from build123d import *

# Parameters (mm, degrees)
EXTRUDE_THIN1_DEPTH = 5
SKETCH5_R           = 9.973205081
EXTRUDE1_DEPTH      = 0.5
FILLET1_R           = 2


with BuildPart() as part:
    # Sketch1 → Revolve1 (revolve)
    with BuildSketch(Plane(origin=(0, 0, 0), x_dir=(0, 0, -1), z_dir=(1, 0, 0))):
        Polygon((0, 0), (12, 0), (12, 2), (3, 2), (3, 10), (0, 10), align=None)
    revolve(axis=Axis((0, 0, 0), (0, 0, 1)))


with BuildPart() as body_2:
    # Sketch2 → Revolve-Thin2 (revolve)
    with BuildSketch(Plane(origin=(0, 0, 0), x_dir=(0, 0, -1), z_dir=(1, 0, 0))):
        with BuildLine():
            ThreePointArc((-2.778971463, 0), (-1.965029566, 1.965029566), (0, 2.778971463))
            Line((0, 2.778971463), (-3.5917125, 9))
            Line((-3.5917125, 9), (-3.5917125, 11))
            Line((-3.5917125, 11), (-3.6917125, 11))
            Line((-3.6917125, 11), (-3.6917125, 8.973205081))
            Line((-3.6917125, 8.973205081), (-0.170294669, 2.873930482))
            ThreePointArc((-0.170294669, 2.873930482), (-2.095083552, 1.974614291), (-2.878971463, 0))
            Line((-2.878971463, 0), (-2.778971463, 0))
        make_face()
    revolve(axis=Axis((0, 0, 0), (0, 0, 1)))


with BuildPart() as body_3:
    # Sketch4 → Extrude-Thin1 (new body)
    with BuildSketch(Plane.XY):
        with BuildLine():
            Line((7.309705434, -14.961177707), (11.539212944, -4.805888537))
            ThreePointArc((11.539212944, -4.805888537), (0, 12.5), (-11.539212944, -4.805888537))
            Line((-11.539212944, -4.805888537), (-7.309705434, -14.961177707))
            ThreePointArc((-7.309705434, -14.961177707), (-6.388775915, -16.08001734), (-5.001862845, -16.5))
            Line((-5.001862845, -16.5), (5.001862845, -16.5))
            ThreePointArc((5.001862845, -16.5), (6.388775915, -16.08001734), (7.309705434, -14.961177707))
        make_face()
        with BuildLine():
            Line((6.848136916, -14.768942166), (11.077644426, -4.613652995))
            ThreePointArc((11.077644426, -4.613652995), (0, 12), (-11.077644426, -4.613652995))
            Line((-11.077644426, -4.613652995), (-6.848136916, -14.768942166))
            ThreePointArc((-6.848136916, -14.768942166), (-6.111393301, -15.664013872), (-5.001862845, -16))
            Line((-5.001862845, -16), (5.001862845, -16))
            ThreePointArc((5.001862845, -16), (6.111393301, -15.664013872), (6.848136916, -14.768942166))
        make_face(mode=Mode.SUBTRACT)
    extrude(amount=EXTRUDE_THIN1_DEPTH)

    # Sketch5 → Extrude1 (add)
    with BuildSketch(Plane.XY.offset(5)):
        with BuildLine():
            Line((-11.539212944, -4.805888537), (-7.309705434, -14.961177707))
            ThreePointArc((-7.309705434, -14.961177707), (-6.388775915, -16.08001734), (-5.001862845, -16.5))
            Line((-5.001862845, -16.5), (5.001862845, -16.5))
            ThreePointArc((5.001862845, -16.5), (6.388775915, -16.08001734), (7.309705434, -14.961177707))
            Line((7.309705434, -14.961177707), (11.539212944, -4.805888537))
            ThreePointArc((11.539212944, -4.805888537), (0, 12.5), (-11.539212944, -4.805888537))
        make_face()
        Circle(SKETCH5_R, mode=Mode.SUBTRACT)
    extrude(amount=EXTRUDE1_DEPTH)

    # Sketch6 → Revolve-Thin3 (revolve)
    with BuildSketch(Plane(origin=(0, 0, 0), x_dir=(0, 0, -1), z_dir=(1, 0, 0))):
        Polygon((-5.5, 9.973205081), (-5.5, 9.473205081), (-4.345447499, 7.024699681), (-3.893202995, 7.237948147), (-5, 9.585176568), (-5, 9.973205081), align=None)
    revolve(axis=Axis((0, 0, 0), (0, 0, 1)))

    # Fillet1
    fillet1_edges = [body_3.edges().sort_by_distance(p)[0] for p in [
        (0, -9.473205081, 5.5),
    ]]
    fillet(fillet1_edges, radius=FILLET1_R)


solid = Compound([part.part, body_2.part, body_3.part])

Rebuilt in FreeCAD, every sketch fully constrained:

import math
import FreeCAD as App
import Part
import Sketcher
from FreeCAD import Vector
Q = App.Units.Quantity


def edges_at(feature, points):
    """Names of the edges that pass closest to the given points."""
    edges = feature.Shape.Edges
    near = lambda p: min(range(len(edges)), key=lambda i: edges[i].distToShape(Part.Vertex(*p))[0])
    return sorted({f"Edge{near(p) + 1}" for p in points})

doc = App.newDocument("Part")
body = doc.addObject("PartDesign::Body", "Body")

sketch1 = body.newObject("Sketcher::SketchObject", "Sketch")
sketch1.AttachmentSupport = (doc.getObject("YZ_Plane"), [""])
sketch1.MapMode = "FlatFace"
sketch1.addGeometry(Part.LineSegment(Vector(0, 0, 0), Vector(0, -12, 0)), False)
sketch1.addGeometry(Part.LineSegment(Vector(0, -12, 0), Vector(2, -12, 0)), False)
sketch1.addGeometry(Part.LineSegment(Vector(2, -12, 0), Vector(2, -3, 0)), False)
sketch1.addGeometry(Part.LineSegment(Vector(2, -3, 0), Vector(10, -3, 0)), False)
sketch1.addGeometry(Part.LineSegment(Vector(10, -3, 0), Vector(10, 0, 0)), False)
sketch1.addGeometry(Part.LineSegment(Vector(10, 0, 0), Vector(0, 0, 0)), False)
sketch1.addConstraint(Sketcher.Constraint("Coincident", 0, 2, 1, 1))
sketch1.addConstraint(Sketcher.Constraint("Coincident", 1, 2, 2, 1))
sketch1.addConstraint(Sketcher.Constraint("Coincident", 2, 2, 3, 1))
sketch1.addConstraint(Sketcher.Constraint("Coincident", 3, 2, 4, 1))
sketch1.addConstraint(Sketcher.Constraint("Coincident", 4, 2, 5, 1))
sketch1.addConstraint(Sketcher.Constraint("Coincident", 5, 2, 0, 1))
sketch1.addConstraint(Sketcher.Constraint("Vertical", 0))
sketch1.addConstraint(Sketcher.Constraint("Horizontal", 1))
sketch1.addConstraint(Sketcher.Constraint("Vertical", 2))
sketch1.addConstraint(Sketcher.Constraint("Horizontal", 3))
sketch1.addConstraint(Sketcher.Constraint("Vertical", 4))
sketch1.addConstraint(Sketcher.Constraint("Horizontal", 5))
sketch1.addConstraint(Sketcher.Constraint("Coincident", 5, 2, -1, 1))
sketch1.addConstraint(Sketcher.Constraint("DistanceX", 1, 1, 1, 2, 2.0))
sketch1.addConstraint(Sketcher.Constraint("DistanceX", 3, 1, 3, 2, 8.0))
sketch1.addConstraint(Sketcher.Constraint("DistanceY", 0, 2, 0, 1, 12.0))
sketch1.addConstraint(Sketcher.Constraint("DistanceY", 2, 1, 2, 2, 9.0))
revolution = body.newObject("PartDesign::Revolution", "Revolution")
revolution.Profile = sketch1
revolution.ReferenceAxis = (sketch1, ["V_Axis"])
revolution.Angle = 360
body2 = doc.addObject("PartDesign::Body", "Body001")

sketch2 = body2.newObject("Sketcher::SketchObject", "Sketch001")
sketch2.AttachmentSupport = (doc.getObject("YZ_Plane001"), [""])
sketch2.MapMode = "FlatFace"
sketch2.addGeometry(Part.ArcOfCircle(Part.Circle(Vector(0, 0, 0), Vector(0, 0, 1), 2.78), math.radians(0), math.radians(90)), False)
sketch2.addGeometry(Part.LineSegment(Vector(2.78, 0, 0), Vector(9, 3.59, 0)), False)
sketch2.addGeometry(Part.LineSegment(Vector(9, 3.59, 0), Vector(11, 3.59, 0)), False)
sketch2.addGeometry(Part.LineSegment(Vector(11, 3.59, 0), Vector(11, 3.69, 0)), False)
sketch2.addGeometry(Part.LineSegment(Vector(11, 3.69, 0), Vector(8.97, 3.69, 0)), False)
sketch2.addGeometry(Part.LineSegment(Vector(8.97, 3.69, 0), Vector(2.87, 0.17, 0)), False)
sketch2.addGeometry(Part.ArcOfCircle(Part.Circle(Vector(0, 0, 0), Vector(0, 0, 1), 2.88), math.radians(3), math.radians(90)), False)
sketch2.addGeometry(Part.LineSegment(Vector(0, 2.88, 0), Vector(0, 2.78, 0)), False)
sketch2.addConstraint(Sketcher.Constraint("Coincident", 0, 1, 1, 1))
sketch2.addConstraint(Sketcher.Constraint("Coincident", 1, 2, 2, 1))
sketch2.addConstraint(Sketcher.Constraint("Coincident", 2, 2, 3, 1))
sketch2.addConstraint(Sketcher.Constraint("Coincident", 3, 2, 4, 1))
sketch2.addConstraint(Sketcher.Constraint("Coincident", 4, 2, 5, 1))
sketch2.addConstraint(Sketcher.Constraint("Coincident", 5, 2, 6, 1))
sketch2.addConstraint(Sketcher.Constraint("Coincident", 6, 2, 7, 1))
sketch2.addConstraint(Sketcher.Constraint("Coincident", 7, 2, 0, 2))
sketch2.addConstraint(Sketcher.Constraint("Horizontal", 2))
sketch2.addConstraint(Sketcher.Constraint("Vertical", 3))
sketch2.addConstraint(Sketcher.Constraint("Horizontal", 4))
sketch2.addConstraint(Sketcher.Constraint("Vertical", 7))
sketch2.addConstraint(Sketcher.Constraint("Coincident", 0, 3, -1, 1))
sketch2.addConstraint(Sketcher.Constraint("Coincident", 6, 3, -1, 1))
sketch2.addConstraint(Sketcher.Constraint("PointOnObject", 0, 1, -1))
sketch2.addConstraint(Sketcher.Constraint("PointOnObject", 6, 2, -2))
sketch2.addConstraint(Sketcher.Constraint("Parallel", 1, 5))
sketch2.addConstraint(Sketcher.Constraint("Equal", 3, 7))
sketch2.addConstraint(Sketcher.Constraint("DistanceX", 2, 1, 2, 2, 2.0))
sketch2.addConstraint(Sketcher.Constraint("Angle", 1, Q("30 deg")))
sketch2.addConstraint(Sketcher.Constraint("DistanceY", 3, 1, 3, 2, 0.1))
sketch2.addConstraint(Sketcher.Constraint("DistanceX", -1, 1, 1, 2, 9.0))
sketch2.addConstraint(Sketcher.Constraint("Radius", 0, 2.778971))
sketch2.addConstraint(Sketcher.Constraint("DistanceX", 4, 2, 4, 1, 2.026795))
revolution2 = body2.newObject("PartDesign::Revolution", "Revolution001")
revolution2.Profile = sketch2
revolution2.ReferenceAxis = (sketch2, ["V_Axis"])
revolution2.Angle = 360
body3 = doc.addObject("PartDesign::Body", "Body002")

sketch3 = body3.newObject("Sketcher::SketchObject", "Sketch002")
sketch3.AttachmentSupport = (doc.getObject("XY_Plane002"), [""])
sketch3.MapMode = "FlatFace"
sketch3.addGeometry(Part.LineSegment(Vector(7.3, -15, 0), Vector(11.5, -4.8, 0)), False)
sketch3.addGeometry(Part.ArcOfCircle(Part.Circle(Vector(0, 0, 0), Vector(0, 0, 1), 12.5), math.radians(-23), math.radians(203)), False)
sketch3.addGeometry(Part.LineSegment(Vector(-11.5, -4.8, 0), Vector(-7.3, -15, 0)), False)
sketch3.addGeometry(Part.ArcOfCircle(Part.Circle(Vector(-5, -14, 0), Vector(0, 0, 1), 2.5), math.radians(-157), math.radians(-90)), False)
sketch3.addGeometry(Part.LineSegment(Vector(-5, -16.5, 0), Vector(5, -16.5, 0)), False)
sketch3.addGeometry(Part.ArcOfCircle(Part.Circle(Vector(5, -14, 0), Vector(0, 0, 1), 2.5), math.radians(-90), math.radians(-23)), False)
sketch3.addGeometry(Part.LineSegment(Vector(11.1, -4.6, 0), Vector(6.8, -14.8, 0)), False)
sketch3.addGeometry(Part.ArcOfCircle(Part.Circle(Vector(5, -14, 0), Vector(0, 0, 1), 2), math.radians(-90), math.radians(-23)), False)
sketch3.addGeometry(Part.LineSegment(Vector(5, -16, 0), Vector(-5, -16, 0)), False)
sketch3.addGeometry(Part.ArcOfCircle(Part.Circle(Vector(-5, -14, 0), Vector(0, 0, 1), 2), math.radians(-157), math.radians(-90)), False)
sketch3.addGeometry(Part.LineSegment(Vector(-6.8, -14.8, 0), Vector(-11.1, -4.6, 0)), False)
sketch3.addGeometry(Part.ArcOfCircle(Part.Circle(Vector(0, 0, 0), Vector(0, 0, 1), 12), math.radians(-23), math.radians(203)), False)
sketch3.addConstraint(Sketcher.Constraint("Tangent", 0, 2, 1, 1))
sketch3.addConstraint(Sketcher.Constraint("Tangent", 1, 2, 2, 1))
sketch3.addConstraint(Sketcher.Constraint("Tangent", 2, 2, 3, 1))
sketch3.addConstraint(Sketcher.Constraint("Tangent", 3, 2, 4, 1))
sketch3.addConstraint(Sketcher.Constraint("Tangent", 4, 2, 5, 1))
sketch3.addConstraint(Sketcher.Constraint("Tangent", 5, 2, 0, 1))
sketch3.addConstraint(Sketcher.Constraint("Tangent", 6, 2, 7, 2))
sketch3.addConstraint(Sketcher.Constraint("Tangent", 7, 1, 8, 1))
sketch3.addConstraint(Sketcher.Constraint("Tangent", 8, 2, 9, 2))
sketch3.addConstraint(Sketcher.Constraint("Tangent", 9, 1, 10, 1))
sketch3.addConstraint(Sketcher.Constraint("Tangent", 10, 2, 11, 2))
sketch3.addConstraint(Sketcher.Constraint("Tangent", 11, 1, 6, 1))
sketch3.addConstraint(Sketcher.Constraint("Horizontal", 4))
sketch3.addConstraint(Sketcher.Constraint("Horizontal", 8))
sketch3.addConstraint(Sketcher.Constraint("Coincident", 1, 3, -1, 1))
sketch3.addConstraint(Sketcher.Constraint("Coincident", 11, 3, -1, 1))
sketch3.addConstraint(Sketcher.Constraint("Coincident", 7, 3, 5, 3))
sketch3.addConstraint(Sketcher.Constraint("Coincident", 9, 3, 3, 3))
sketch3.addConstraint(Sketcher.Constraint("Equal", 3, 5))
sketch3.addConstraint(Sketcher.Constraint("Parallel", 0, 6))
sketch3.addConstraint(Sketcher.Constraint("Horizontal", 0, 2, 1, 2))
sketch3.addConstraint(Sketcher.Constraint("Radius", 7, 2.0))
sketch3.addConstraint(Sketcher.Constraint("Radius", 11, 12.0))
sketch3.addConstraint(Sketcher.Constraint("Radius", 1, 12.5))
sketch3.addConstraint(Sketcher.Constraint("DistanceY", 3, 3, -1, 1, 14.0))
sketch3.addConstraint(Sketcher.Constraint("DistanceX", 4, 1, 4, 2, 10.003726))
pad1 = body3.newObject("PartDesign::Pad", "Pad")
pad1.Profile = sketch3
pad1.Length = 5

sketch4 = body3.newObject("Sketcher::SketchObject", "Sketch003")
sketch4.AttachmentSupport = (doc.getObject("XY_Plane002"), [""])
sketch4.MapMode = "FlatFace"
sketch4.AttachmentOffset = App.Placement(Vector(0, 0, 5), App.Rotation())
sketch4.addGeometry(Part.LineSegment(Vector(-11.5, -4.8, 0), Vector(-7.3, -15, 0)), False)
sketch4.addGeometry(Part.ArcOfCircle(Part.Circle(Vector(-5, -14, 0), Vector(0, 0, 1), 2.5), math.radians(-157), math.radians(-90)), False)
sketch4.addGeometry(Part.LineSegment(Vector(-5, -16.5, 0), Vector(5, -16.5, 0)), False)
sketch4.addGeometry(Part.ArcOfCircle(Part.Circle(Vector(5, -14, 0), Vector(0, 0, 1), 2.5), math.radians(-90), math.radians(-23)), False)
sketch4.addGeometry(Part.LineSegment(Vector(7.3, -15, 0), Vector(11.5, -4.8, 0)), False)
sketch4.addGeometry(Part.ArcOfCircle(Part.Circle(Vector(0, 0, 0), Vector(0, 0, 1), 12.5), math.radians(-23), math.radians(203)), False)
sketch4.addGeometry(Part.Circle(Vector(0, 0, 0), Vector(0, 0, 1), 10), False)
sketch4.addConstraint(Sketcher.Constraint("Tangent", 0, 2, 1, 1))
sketch4.addConstraint(Sketcher.Constraint("Tangent", 1, 2, 2, 1))
sketch4.addConstraint(Sketcher.Constraint("Tangent", 2, 2, 3, 1))
sketch4.addConstraint(Sketcher.Constraint("Tangent", 3, 2, 4, 1))
sketch4.addConstraint(Sketcher.Constraint("Tangent", 4, 2, 5, 1))
sketch4.addConstraint(Sketcher.Constraint("Tangent", 5, 2, 0, 1))
sketch4.addConstraint(Sketcher.Constraint("Horizontal", 2))
sketch4.addConstraint(Sketcher.Constraint("Coincident", 5, 3, -1, 1))
sketch4.addConstraint(Sketcher.Constraint("Coincident", 6, 3, -1, 1))
sketch4.addConstraint(Sketcher.Constraint("Equal", 1, 3))
sketch4.addConstraint(Sketcher.Constraint("Horizontal", 0, 2, 3, 2))
sketch4.addConstraint(Sketcher.Constraint("Radius", 1, 2.5))
sketch4.addConstraint(Sketcher.Constraint("Radius", 5, 12.5))
sketch4.addConstraint(Sketcher.Constraint("DistanceY", 1, 3, -1, 1, 14.0))
sketch4.addConstraint(Sketcher.Constraint("Diameter", 6, 19.94641))
sketch4.addConstraint(Sketcher.Constraint("DistanceX", 2, 1, 2, 2, 10.003726))
pad2 = body3.newObject("PartDesign::Pad", "Pad001")
pad2.Profile = sketch4
pad2.Length = 0.5

sketch5 = body3.newObject("Sketcher::SketchObject", "Sketch004")
sketch5.AttachmentSupport = (doc.getObject("YZ_Plane002"), [""])
sketch5.MapMode = "FlatFace"
sketch5.addGeometry(Part.LineSegment(Vector(9.97, 5.5, 0), Vector(9.47, 5.5, 0)), False)
sketch5.addGeometry(Part.LineSegment(Vector(9.47, 5.5, 0), Vector(7.02, 4.35, 0)), False)
sketch5.addGeometry(Part.LineSegment(Vector(7.02, 4.35, 0), Vector(7.24, 3.89, 0)), False)
sketch5.addGeometry(Part.LineSegment(Vector(7.24, 3.89, 0), Vector(9.59, 5, 0)), False)
sketch5.addGeometry(Part.LineSegment(Vector(9.59, 5, 0), Vector(9.97, 5, 0)), False)
sketch5.addGeometry(Part.LineSegment(Vector(9.97, 5, 0), Vector(9.97, 5.5, 0)), False)
sketch5.addConstraint(Sketcher.Constraint("Coincident", 0, 2, 1, 1))
sketch5.addConstraint(Sketcher.Constraint("Coincident", 1, 2, 2, 1))
sketch5.addConstraint(Sketcher.Constraint("Coincident", 2, 2, 3, 1))
sketch5.addConstraint(Sketcher.Constraint("Coincident", 3, 2, 4, 1))
sketch5.addConstraint(Sketcher.Constraint("Coincident", 4, 2, 5, 1))
sketch5.addConstraint(Sketcher.Constraint("Coincident", 5, 2, 0, 1))
sketch5.addConstraint(Sketcher.Constraint("Horizontal", 0))
sketch5.addConstraint(Sketcher.Constraint("Horizontal", 4))
sketch5.addConstraint(Sketcher.Constraint("Vertical", 5))
sketch5.addConstraint(Sketcher.Constraint("Perpendicular", 1, 2))
sketch5.addConstraint(Sketcher.Constraint("Perpendicular", 2, 3))
sketch5.addConstraint(Sketcher.Constraint("Equal", 0, 5))
sketch5.addConstraint(Sketcher.Constraint("DistanceX", 0, 2, 0, 1, 0.5))
sketch5.addConstraint(Sketcher.Constraint("DistanceY", -1, 1, 3, 2, 5.0))
sketch5.addConstraint(Sketcher.Constraint("Distance", 2, 0.5))
sketch5.addConstraint(Sketcher.Constraint("DistanceX", 4, 1, 4, 2, 0.388029))
sketch5.addConstraint(Sketcher.Constraint("DistanceX", -1, 1, 1, 2, 7.0247))
sketch5.addConstraint(Sketcher.Constraint("Distance", 1, 2.707059))
revolution3 = body3.newObject("PartDesign::Revolution", "Revolution002")
revolution3.Profile = sketch5
revolution3.ReferenceAxis = (sketch5, ["V_Axis"])
revolution3.Angle = 360
doc.recompute()

fillet = body3.newObject("PartDesign::Fillet", "Fillet")
fillet.Base = (revolution3, edges_at(revolution3, [(0, -9.473, 5.5)]))
fillet.Radius = 2

doc.recompute()
